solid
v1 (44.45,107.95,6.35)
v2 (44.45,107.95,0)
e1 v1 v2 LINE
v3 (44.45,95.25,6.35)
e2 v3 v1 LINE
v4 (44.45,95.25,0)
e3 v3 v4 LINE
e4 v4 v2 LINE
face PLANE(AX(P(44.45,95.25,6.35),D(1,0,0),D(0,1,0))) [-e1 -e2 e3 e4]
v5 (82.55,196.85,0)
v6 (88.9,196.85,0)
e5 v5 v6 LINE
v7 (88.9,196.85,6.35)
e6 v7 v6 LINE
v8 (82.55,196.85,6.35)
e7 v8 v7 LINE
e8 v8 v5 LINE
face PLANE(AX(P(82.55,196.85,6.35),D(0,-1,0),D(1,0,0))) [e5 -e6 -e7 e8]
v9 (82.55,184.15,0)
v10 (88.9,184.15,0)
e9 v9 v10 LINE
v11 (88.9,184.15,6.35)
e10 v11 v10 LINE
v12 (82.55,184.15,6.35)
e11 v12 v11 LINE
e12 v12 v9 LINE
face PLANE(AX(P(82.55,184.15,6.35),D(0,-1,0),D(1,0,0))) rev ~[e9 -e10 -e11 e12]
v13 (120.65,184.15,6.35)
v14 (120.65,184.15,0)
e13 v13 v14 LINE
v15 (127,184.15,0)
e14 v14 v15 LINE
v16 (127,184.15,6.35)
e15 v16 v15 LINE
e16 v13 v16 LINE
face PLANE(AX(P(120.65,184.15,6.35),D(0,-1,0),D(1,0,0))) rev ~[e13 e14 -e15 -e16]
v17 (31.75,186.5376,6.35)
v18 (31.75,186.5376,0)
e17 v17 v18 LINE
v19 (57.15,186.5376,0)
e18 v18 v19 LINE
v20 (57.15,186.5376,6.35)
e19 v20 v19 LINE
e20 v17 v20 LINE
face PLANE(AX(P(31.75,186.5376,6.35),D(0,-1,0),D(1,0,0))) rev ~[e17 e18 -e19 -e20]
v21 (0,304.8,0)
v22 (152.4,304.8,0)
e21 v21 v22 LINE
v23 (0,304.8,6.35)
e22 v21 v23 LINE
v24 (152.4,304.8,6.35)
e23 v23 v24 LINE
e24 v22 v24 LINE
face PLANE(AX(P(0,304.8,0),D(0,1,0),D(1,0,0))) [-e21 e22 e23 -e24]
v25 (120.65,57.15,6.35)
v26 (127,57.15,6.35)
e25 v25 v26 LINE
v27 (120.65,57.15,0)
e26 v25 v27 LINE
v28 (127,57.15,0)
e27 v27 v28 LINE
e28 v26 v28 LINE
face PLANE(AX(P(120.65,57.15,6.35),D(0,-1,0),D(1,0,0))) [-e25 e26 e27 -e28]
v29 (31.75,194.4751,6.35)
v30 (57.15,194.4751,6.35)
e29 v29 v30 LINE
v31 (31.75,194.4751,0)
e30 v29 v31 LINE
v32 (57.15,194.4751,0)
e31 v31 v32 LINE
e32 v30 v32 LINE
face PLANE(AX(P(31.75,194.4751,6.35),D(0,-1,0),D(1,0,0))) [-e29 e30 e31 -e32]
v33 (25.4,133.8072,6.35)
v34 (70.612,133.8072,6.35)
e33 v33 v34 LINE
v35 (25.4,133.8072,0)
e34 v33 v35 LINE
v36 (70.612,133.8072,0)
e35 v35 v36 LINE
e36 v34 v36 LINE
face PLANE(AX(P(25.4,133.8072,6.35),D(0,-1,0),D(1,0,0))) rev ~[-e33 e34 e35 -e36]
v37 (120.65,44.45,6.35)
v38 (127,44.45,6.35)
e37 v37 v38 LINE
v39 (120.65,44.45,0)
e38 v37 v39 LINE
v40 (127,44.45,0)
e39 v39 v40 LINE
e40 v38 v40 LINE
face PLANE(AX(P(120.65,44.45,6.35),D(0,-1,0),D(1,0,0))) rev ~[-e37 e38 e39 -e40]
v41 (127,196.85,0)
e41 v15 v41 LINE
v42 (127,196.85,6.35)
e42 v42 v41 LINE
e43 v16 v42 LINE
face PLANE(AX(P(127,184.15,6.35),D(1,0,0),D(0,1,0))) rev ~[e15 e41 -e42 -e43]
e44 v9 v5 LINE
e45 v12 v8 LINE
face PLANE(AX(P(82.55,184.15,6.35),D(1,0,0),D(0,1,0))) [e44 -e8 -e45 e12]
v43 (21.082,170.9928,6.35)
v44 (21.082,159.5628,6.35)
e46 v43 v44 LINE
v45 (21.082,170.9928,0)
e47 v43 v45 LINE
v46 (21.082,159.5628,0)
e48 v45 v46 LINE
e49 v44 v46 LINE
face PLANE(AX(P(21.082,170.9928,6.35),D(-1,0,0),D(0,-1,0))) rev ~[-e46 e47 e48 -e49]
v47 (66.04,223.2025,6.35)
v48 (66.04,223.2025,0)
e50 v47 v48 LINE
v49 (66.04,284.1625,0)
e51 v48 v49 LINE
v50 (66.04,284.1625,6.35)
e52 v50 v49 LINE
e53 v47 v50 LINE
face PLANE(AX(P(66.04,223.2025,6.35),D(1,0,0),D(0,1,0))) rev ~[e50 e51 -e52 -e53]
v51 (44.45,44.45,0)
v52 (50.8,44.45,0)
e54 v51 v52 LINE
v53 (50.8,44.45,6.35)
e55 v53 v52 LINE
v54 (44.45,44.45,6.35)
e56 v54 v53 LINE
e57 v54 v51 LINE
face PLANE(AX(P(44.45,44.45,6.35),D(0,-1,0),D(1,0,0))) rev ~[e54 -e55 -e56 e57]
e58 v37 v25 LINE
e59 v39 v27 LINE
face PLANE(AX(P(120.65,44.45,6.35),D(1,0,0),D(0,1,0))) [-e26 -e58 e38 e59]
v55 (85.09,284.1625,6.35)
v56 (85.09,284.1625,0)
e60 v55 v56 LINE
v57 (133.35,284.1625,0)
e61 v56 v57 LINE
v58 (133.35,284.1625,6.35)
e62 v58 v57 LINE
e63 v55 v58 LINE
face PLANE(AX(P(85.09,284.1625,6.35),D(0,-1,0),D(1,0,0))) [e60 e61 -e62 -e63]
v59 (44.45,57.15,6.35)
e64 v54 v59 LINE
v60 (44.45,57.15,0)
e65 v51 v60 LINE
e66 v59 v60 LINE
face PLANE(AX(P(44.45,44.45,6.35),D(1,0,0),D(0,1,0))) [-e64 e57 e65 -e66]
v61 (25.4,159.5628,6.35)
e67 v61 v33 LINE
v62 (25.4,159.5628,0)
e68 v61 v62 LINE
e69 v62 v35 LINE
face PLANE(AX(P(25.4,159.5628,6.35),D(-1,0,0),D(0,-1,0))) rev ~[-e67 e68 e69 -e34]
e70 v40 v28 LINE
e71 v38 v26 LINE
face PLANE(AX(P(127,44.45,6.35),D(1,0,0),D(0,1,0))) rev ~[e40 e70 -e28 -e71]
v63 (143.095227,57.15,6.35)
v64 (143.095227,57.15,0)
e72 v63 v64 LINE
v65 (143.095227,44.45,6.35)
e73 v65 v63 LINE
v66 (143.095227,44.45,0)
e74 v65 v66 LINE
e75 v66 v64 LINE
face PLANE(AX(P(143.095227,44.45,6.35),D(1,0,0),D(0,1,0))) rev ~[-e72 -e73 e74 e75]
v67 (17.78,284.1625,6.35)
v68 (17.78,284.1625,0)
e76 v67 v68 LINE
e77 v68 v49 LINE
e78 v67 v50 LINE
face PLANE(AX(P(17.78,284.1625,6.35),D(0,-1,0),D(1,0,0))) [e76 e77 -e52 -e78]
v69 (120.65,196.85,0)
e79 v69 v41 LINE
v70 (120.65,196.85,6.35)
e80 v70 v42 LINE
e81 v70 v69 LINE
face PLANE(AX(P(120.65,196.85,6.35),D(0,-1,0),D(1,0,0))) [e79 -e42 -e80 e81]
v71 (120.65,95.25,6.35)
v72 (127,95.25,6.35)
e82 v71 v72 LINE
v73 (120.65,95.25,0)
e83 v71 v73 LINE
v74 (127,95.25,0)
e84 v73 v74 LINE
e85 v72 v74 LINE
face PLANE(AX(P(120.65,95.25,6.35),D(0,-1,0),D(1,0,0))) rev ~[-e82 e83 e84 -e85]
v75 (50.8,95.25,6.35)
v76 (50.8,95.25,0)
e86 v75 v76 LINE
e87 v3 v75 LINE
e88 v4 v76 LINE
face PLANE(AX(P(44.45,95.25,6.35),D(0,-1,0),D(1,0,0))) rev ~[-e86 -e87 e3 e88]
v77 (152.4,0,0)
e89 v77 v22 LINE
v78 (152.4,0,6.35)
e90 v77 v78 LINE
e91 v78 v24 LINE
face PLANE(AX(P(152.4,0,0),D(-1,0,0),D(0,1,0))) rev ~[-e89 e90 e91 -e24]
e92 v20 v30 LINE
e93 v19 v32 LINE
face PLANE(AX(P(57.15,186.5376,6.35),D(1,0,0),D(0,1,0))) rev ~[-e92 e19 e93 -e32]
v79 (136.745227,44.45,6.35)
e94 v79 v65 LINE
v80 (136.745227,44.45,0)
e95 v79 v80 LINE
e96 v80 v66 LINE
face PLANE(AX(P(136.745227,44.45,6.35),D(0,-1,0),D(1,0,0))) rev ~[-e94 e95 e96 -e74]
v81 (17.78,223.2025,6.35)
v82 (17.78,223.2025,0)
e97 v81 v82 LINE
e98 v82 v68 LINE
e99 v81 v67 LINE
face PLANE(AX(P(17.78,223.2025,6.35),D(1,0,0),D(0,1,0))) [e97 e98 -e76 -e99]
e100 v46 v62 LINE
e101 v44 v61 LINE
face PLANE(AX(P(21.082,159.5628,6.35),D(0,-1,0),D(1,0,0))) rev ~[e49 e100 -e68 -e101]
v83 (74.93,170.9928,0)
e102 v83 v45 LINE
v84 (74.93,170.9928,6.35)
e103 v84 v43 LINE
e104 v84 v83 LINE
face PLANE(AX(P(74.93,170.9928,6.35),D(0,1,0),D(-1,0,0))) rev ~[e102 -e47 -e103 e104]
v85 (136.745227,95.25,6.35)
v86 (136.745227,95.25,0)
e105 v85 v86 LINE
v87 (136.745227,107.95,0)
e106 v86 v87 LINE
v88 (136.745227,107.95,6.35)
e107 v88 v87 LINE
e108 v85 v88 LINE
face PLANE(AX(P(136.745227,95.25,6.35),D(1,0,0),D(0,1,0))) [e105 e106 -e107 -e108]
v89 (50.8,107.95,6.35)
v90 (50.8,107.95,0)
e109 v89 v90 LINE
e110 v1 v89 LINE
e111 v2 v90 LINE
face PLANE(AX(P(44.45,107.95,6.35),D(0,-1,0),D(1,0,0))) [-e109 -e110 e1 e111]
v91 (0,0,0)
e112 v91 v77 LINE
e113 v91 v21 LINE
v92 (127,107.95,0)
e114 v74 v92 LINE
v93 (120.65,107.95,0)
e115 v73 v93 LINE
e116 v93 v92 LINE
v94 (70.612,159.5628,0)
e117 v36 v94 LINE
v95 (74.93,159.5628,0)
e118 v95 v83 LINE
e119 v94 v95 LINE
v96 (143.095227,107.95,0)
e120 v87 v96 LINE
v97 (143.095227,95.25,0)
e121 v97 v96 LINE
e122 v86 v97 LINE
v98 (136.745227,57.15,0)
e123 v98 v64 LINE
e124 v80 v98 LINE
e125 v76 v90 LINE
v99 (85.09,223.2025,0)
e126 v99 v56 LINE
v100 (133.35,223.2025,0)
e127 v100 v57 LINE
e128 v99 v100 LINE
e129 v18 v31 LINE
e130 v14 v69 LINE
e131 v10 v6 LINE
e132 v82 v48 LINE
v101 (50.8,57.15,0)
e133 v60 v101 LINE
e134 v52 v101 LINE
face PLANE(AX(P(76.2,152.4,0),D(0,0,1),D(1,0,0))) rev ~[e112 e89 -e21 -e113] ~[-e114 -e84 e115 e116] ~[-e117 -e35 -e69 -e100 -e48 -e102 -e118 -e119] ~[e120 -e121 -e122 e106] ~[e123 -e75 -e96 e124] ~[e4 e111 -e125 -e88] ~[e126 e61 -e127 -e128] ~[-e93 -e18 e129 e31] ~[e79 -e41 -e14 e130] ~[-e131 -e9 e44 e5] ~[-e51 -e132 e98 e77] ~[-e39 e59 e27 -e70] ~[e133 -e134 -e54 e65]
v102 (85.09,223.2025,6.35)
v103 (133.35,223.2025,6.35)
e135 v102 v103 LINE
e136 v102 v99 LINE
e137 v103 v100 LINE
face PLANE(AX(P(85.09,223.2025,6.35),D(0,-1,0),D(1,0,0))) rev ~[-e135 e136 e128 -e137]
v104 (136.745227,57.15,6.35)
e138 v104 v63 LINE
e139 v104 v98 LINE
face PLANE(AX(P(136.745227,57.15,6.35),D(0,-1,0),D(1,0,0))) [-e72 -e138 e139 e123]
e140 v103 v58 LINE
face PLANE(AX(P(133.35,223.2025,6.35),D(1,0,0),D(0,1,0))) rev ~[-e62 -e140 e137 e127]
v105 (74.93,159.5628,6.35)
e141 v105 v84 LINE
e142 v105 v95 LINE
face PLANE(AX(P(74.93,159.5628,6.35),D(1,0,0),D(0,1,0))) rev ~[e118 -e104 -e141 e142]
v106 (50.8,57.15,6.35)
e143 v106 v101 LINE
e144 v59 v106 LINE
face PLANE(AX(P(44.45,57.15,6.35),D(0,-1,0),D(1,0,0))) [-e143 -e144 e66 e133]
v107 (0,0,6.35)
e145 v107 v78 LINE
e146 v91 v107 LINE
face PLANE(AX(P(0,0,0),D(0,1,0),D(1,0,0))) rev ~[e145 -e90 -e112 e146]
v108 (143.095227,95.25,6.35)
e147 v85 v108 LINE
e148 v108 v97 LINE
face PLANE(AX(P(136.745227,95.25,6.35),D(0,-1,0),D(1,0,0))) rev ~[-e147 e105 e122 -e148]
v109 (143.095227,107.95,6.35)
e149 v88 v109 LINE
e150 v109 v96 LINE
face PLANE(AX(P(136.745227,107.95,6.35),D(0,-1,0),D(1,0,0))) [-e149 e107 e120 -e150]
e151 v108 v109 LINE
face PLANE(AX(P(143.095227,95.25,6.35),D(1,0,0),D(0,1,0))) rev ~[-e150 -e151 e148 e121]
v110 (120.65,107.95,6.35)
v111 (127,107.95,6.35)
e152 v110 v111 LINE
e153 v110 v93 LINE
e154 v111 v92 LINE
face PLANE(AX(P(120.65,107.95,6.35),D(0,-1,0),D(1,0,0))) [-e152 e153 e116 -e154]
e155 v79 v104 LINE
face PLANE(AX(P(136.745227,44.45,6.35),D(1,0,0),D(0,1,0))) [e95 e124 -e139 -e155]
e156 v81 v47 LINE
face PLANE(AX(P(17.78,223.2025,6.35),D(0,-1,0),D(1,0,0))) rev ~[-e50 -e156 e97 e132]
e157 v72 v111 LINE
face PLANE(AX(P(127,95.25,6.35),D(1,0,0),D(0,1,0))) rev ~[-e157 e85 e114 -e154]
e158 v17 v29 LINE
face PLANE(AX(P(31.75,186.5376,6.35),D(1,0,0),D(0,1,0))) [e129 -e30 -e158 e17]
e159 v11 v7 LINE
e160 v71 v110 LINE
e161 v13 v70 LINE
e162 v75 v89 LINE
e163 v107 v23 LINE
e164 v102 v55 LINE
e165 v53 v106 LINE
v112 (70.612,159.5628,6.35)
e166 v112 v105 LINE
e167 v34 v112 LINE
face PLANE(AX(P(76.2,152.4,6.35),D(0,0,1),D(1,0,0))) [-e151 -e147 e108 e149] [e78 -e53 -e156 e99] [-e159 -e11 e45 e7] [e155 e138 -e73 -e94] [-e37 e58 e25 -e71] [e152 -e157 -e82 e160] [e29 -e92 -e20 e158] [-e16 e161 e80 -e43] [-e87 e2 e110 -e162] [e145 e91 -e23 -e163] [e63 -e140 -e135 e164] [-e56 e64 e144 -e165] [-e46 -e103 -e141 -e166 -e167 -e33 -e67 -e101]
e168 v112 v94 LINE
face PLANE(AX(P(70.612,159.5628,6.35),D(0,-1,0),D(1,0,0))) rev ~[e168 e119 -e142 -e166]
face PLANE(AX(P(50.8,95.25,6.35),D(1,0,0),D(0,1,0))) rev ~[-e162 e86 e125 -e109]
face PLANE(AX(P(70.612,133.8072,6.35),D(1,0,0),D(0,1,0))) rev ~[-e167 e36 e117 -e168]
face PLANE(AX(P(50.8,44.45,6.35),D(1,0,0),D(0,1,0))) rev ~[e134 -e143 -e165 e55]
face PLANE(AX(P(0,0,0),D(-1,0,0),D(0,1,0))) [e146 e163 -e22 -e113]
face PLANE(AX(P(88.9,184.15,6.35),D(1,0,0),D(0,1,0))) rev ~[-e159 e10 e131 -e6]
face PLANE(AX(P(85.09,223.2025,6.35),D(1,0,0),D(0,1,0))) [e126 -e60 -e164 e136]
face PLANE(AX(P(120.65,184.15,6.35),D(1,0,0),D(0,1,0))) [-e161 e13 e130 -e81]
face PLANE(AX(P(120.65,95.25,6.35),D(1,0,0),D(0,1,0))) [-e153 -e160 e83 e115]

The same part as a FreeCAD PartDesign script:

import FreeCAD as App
import Part
import Sketcher
Q = App.Units.Quantity


def add_polygon(sketch, points):
    """Adds a closed chain of lines whose ends are joined by coincident constraints."""
    first, n = sketch.GeometryCount, len(points)
    for a, b in zip(points, points[1:] + points[:1]):
        sketch.addGeometry(Part.LineSegment(App.Vector(*a, 0), App.Vector(*b, 0)), False)
    for i in range(n):
        sketch.addConstraint(Sketcher.Constraint("Coincident", first + i, 2, first + (i + 1) % n, 1))

doc = App.newDocument("Part")
body = doc.addObject("PartDesign::Body", "Body")

# Sketch on XY plane
sketch1 = body.newObject("Sketcher::SketchObject", "Sketch")
sketch1.AttachmentSupport = (doc.getObject("XY_Plane"), [""])
sketch1.MapMode = "FlatFace"
add_polygon(sketch1, [(0, 305), (0, 0), (152, 0), (152, 305)])  # lines 0-3
sketch1.addConstraint(Sketcher.Constraint("Vertical", 0))
sketch1.addConstraint(Sketcher.Constraint("Horizontal", 1))
sketch1.addConstraint(Sketcher.Constraint("Vertical", 2))
sketch1.addConstraint(Sketcher.Constraint("Horizontal", 3))
sketch1.addConstraint(Sketcher.Constraint("Coincident", 0, 2, -1, 1))
sketch1.addConstraint(Sketcher.Constraint("DistanceX", 1, 1, 1, 2, Q("6 in")))
sketch1.addConstraint(Sketcher.Constraint("DistanceY", 0, 2, 0, 1, Q("12 in")))
pad1 = body.newObject("PartDesign::Pad", "Pad")
pad1.Profile = sketch1
pad1.Length = Q("0.25 in")

# Sketch on XY plane
sketch2 = body.newObject("Sketcher::SketchObject", "Sketch001")
sketch2.AttachmentSupport = (doc.getObject("XY_Plane"), [""])
sketch2.MapMode = "FlatFace"
sketch2.AttachmentOffset = App.Placement(App.Vector(0, 0, 0.25 * 25.4), App.Rotation())
add_polygon(sketch2, [(120.7, 57.1), (120.7, 44.5), (127, 44.5), (127, 57.1)])  # lines 0-3
add_polygon(sketch2, [(44.5, 57.1), (44.5, 44.5), (50.8, 44.5), (50.8, 57.1)])  # lines 4-7
add_polygon(sketch2, [(120.7, 108), (120.7, 95.2), (127, 95.2), (127, 108)])  # lines 8-11
add_polygon(sketch2, [(44.5, 108), (44.5, 95.2), (50.8, 95.2), (50.8, 108)])  # lines 12-15
add_polygon(sketch2, [(120.7, 196.8), (120.7, 184.2), (127, 184.2), (127, 196.8)])  # lines 16-19
add_polygon(sketch2, [(82.5, 196.8), (82.5, 184.2), (88.9, 184.2), (88.9, 196.8)])  # lines 20-23
add_polygon(sketch2, [(85.1, 284.2), (85.1, 223.2), (133.3, 223.2), (133.3, 284.2)])  # lines 24-27
add_polygon(sketch2, [(31.8, 194.5), (31.8, 186.5), (57.1, 186.5), (57.1, 194.5)])  # lines 28-31
add_polygon(sketch2, [(25.4, 159.6), (25.4, 133.8), (70.6, 133.8), (70.6, 159.6), (74.9, 159.6), (74.9, 171), (21.1, 171), (21.1, 159.6)])  # lines 32-39
add_polygon(sketch2, [(17.8, 284.2), (17.8, 223.2), (66, 223.2), (66, 284.2)])  # lines 40-43
sketch2.addConstraint(Sketcher.Constraint("Vertical", 0))
sketch2.addConstraint(Sketcher.Constraint("Horizontal", 1))
sketch2.addConstraint(Sketcher.Constraint("Vertical", 2))
sketch2.addConstraint(Sketcher.Constraint("Horizontal", 3))
sketch2.addConstraint(Sketcher.Constraint("Vertical", 4))
sketch2.addConstraint(Sketcher.Constraint("Horizontal", 5))
sketch2.addConstraint(Sketcher.Constraint("Vertical", 6))
sketch2.addConstraint(Sketcher.Constraint("Horizontal", 7))
sketch2.addConstraint(Sketcher.Constraint("Vertical", 8))
sketch2.addConstraint(Sketcher.Constraint("Horizontal", 9))
sketch2.addConstraint(Sketcher.Constraint("Vertical", 10))
sketch2.addConstraint(Sketcher.Constraint("Horizontal", 11))
sketch2.addConstraint(Sketcher.Constraint("Vertical", 12))
sketch2.addConstraint(Sketcher.Constraint("Horizontal", 13))
sketch2.addConstraint(Sketcher.Constraint("Vertical", 14))
sketch2.addConstraint(Sketcher.Constraint("Horizontal", 15))
sketch2.addConstraint(Sketcher.Constraint("Vertical", 16))
sketch2.addConstraint(Sketcher.Constraint("Horizontal", 17))
sketch2.addConstraint(Sketcher.Constraint("Vertical", 18))
sketch2.addConstraint(Sketcher.Constraint("Horizontal", 19))
sketch2.addConstraint(Sketcher.Constraint("Vertical", 20))
sketch2.addConstraint(Sketcher.Constraint("Horizontal", 21))
sketch2.addConstraint(Sketcher.Constraint("Vertical", 22))
sketch2.addConstraint(Sketcher.Constraint("Horizontal", 23))
sketch2.addConstraint(Sketcher.Constraint("Vertical", 24))
sketch2.addConstraint(Sketcher.Constraint("Horizontal", 25))
sketch2.addConstraint(Sketcher.Constraint("Vertical", 26))
sketch2.addConstraint(Sketcher.Constraint("Horizontal", 27))
sketch2.addConstraint(Sketcher.Constraint("Vertical", 28))
sketch2.addConstraint(Sketcher.Constraint("Horizontal", 29))
sketch2.addConstraint(Sketcher.Constraint("Vertical", 30))
sketch2.addConstraint(Sketcher.Constraint("Horizontal", 31))
sketch2.addConstraint(Sketcher.Constraint("Vertical", 32))
sketch2.addConstraint(Sketcher.Constraint("Horizontal", 33))
sketch2.addConstraint(Sketcher.Constraint("Vertical", 34))
sketch2.addConstraint(Sketcher.Constraint("Horizontal", 35))
sketch2.addConstraint(Sketcher.Constraint("Vertical", 36))
sketch2.addConstraint(Sketcher.Constraint("Horizontal", 37))
sketch2.addConstraint(Sketcher.Constraint("Vertical", 38))
sketch2.addConstraint(Sketcher.Constraint("Horizontal", 39))
sketch2.addConstraint(Sketcher.Constraint("Vertical", 40))
sketch2.addConstraint(Sketcher.Constraint("Horizontal", 41))
sketch2.addConstraint(Sketcher.Constraint("Vertical", 42))
sketch2.addConstraint(Sketcher.Constraint("Horizontal", 43))
sketch2.addConstraint(Sketcher.Constraint("Horizontal", 1, 2, 4, 2))
sketch2.addConstraint(Sketcher.Constraint("Horizontal", 3, 2, 6, 2))
sketch2.addConstraint(Sketcher.Constraint("Horizontal", 9, 2, 12, 2))
sketch2.addConstraint(Sketcher.Constraint("Horizontal", 11, 2, 14, 2))
sketch2.addConstraint(Sketcher.Constraint("Horizontal", 17, 2, 20, 2))
sketch2.addConstraint(Sketcher.Constraint("Horizontal", 19, 2, 22, 2))
sketch2.addConstraint(Sketcher.Constraint("Horizontal", 35, 2, 38, 2))
sketch2.addConstraint(Sketcher.Constraint("Horizontal", 25, 2, 40, 2))
sketch2.addConstraint(Sketcher.Constraint("Horizontal", 27, 2, 42, 2))
sketch2.addConstraint(Sketcher.Constraint("Vertical", 3, 2, 8, 2))
sketch2.addConstraint(Sketcher.Constraint("Vertical", 2, 2, 9, 2))
sketch2.addConstraint(Sketcher.Constraint("Vertical", 7, 2, 12, 2))
sketch2.addConstraint(Sketcher.Constraint("Vertical", 6, 2, 13, 2))
sketch2.addConstraint(Sketcher.Constraint("Vertical", 11, 2, 16, 2))
sketch2.addConstraint(Sketcher.Constraint("Vertical", 10, 2, 17, 2))
sketch2.addConstraint(Sketcher.Constraint("Equal", 3, 5))
sketch2.addConstraint(Sketcher.Constraint("Equal", 19, 21))
sketch2.addConstraint(Sketcher.Constraint("Equal", 35, 39))
sketch2.addConstraint(Sketcher.Constraint("Equal", 27, 41))
sketch2.addConstraint(Sketcher.Constraint("Equal", 6, 8))
sketch2.addConstraint(Sketcher.Constraint("Equal", 14, 16))
sketch2.addConstraint(Sketcher.Constraint("DistanceX", 29, 1, 29, 2, Q("1 in")))
sketch2.addConstraint(Sketcher.Constraint("DistanceX", 25, 1, 25, 2, Q("1.9 in")))
sketch2.addConstraint(Sketcher.Constraint("DistanceY", 0, 2, 0, 1, Q("0.5 in")))
sketch2.addConstraint(Sketcher.Constraint("DistanceY", 24, 2, 24, 1, Q("2.4 in")))
sketch2.addConstraint(Sketcher.Constraint("DistanceX", -1, 1, 1, 2, Q("5 in")))
sketch2.addConstraint(Sketcher.Constraint("DistanceX", -1, 1, 5, 2, Q("2 in")))
sketch2.addConstraint(Sketcher.Constraint("DistanceX", -1, 1, 32, 2, Q("1 in")))
sketch2.addConstraint(Sketcher.Constraint("DistanceY", 0, 2, 8, 2, Q("2 in")))
sketch2.addConstraint(Sketcher.Constraint("DistanceY", 11, 2, 16, 2, Q("3 in")))
sketch2.addConstraint(Sketcher.Constraint("DistanceX", 28, 2, 20, 2, Q("2 in")))
sketch2.addConstraint(Sketcher.Constraint("DistanceX", 1, 1, 1, 2, Q("0.25 in")))
sketch2.addConstraint(Sketcher.Constraint("DistanceX", 33, 1, 33, 2, Q("1.78 in")))
sketch2.addConstraint(Sketcher.Constraint("DistanceX", 35, 1, 35, 2, Q("0.17 in")))
sketch2.addConstraint(Sketcher.Constraint("DistanceY", 36, 1, 36, 2, Q("0.45 in")))
sketch2.addConstraint(Sketcher.Constraint("DistanceX", -1, 1, 21, 2, Q("3.5 in")))
sketch2.addConstraint(Sketcher.Constraint("DistanceX", -1, 1, 40, 2, Q("0.7 in")))
sketch2.addConstraint(Sketcher.Constraint("DistanceX", 23, 2, 24, 2, Q("0.1 in")))
sketch2.addConstraint(Sketcher.Constraint("DistanceY", 28, 2, 28, 1, Q("0.3125 in")))
sketch2.addConstraint(Sketcher.Constraint("DistanceY", 32, 2, 32, 1, Q("1.014 in")))
sketch2.addConstraint(Sketcher.Constraint("DistanceY", -1, 1, 0, 2, Q("1.75 in")))
sketch2.addConstraint(Sketcher.Constraint("DistanceY", -1, 1, 26, 2, Q("11.1875 in")))
sketch2.addConstraint(Sketcher.Constraint("DistanceY", -1, 1, 28, 2, Q("7.344 in")))
sketch2.addConstraint(Sketcher.Constraint("DistanceY", -1, 1, 32, 2, Q("5.268 in")))
pocket1 = body.newObject("PartDesign::Pocket", "Pocket")
pocket1.Profile = sketch2
pocket1.Type = "ThroughAll"

# Sketch on XY plane
sketch3 = body.newObject("Sketcher::SketchObject", "Sketch002")
sketch3.AttachmentSupport = (doc.getObject("XY_Plane"), [""])
sketch3.MapMode = "FlatFace"
sketch3.AttachmentOffset = App.Placement(App.Vector(0, 0, 0.25 * 25.4), App.Rotation())
add_polygon(sketch3, [(137, 57), (137, 44), (143, 44), (143, 57)])  # lines 0-3
add_polygon(sketch3, [(137, 108), (137, 95), (143, 95), (143, 108)])  # lines 4-7
sketch3.addConstraint(Sketcher.Constraint("Vertical", 0))
sketch3.addConstraint(Sketcher.Constraint("Horizontal", 1))
sketch3.addConstraint(Sketcher.Constraint("Vertical", 2))
sketch3.addConstraint(Sketcher.Constraint("Horizontal", 3))
sketch3.addConstraint(Sketcher.Constraint("Vertical", 4))
sketch3.addConstraint(Sketcher.Constraint("Horizontal", 5))
sketch3.addConstraint(Sketcher.Constraint("Vertical", 6))
sketch3.addConstraint(Sketcher.Constraint("Horizontal", 7))
sketch3.addConstraint(Sketcher.Constraint("Vertical", 3, 2, 4, 2))
sketch3.addConstraint(Sketcher.Constraint("Vertical", 2, 2, 5, 2))
sketch3.addConstraint(Sketcher.Constraint("Equal", 2, 4))
sketch3.addConstraint(Sketcher.Constraint("DistanceY", 0, 2, 0, 1, Q("0.5 in")))
sketch3.addConstraint(Sketcher.Constraint("DistanceY", 0, 2, 4, 2, Q("2 in")))
sketch3.addConstraint(Sketcher.Constraint("DistanceX", 1, 1, 1, 2, Q("0.25 in")))
sketch3.addConstraint(Sketcher.Constraint("DistanceY", -1, 1, 0, 2, Q("1.75 in")))
sketch3.addConstraint(Sketcher.Constraint("DistanceX", -1, 1, 0, 2, Q("136.745227 mm")))
pocket2 = body.newObject("PartDesign::Pocket", "Pocket001")
pocket2.Profile = sketch3
pocket2.Length = Q("1 in")

doc.recompute()
